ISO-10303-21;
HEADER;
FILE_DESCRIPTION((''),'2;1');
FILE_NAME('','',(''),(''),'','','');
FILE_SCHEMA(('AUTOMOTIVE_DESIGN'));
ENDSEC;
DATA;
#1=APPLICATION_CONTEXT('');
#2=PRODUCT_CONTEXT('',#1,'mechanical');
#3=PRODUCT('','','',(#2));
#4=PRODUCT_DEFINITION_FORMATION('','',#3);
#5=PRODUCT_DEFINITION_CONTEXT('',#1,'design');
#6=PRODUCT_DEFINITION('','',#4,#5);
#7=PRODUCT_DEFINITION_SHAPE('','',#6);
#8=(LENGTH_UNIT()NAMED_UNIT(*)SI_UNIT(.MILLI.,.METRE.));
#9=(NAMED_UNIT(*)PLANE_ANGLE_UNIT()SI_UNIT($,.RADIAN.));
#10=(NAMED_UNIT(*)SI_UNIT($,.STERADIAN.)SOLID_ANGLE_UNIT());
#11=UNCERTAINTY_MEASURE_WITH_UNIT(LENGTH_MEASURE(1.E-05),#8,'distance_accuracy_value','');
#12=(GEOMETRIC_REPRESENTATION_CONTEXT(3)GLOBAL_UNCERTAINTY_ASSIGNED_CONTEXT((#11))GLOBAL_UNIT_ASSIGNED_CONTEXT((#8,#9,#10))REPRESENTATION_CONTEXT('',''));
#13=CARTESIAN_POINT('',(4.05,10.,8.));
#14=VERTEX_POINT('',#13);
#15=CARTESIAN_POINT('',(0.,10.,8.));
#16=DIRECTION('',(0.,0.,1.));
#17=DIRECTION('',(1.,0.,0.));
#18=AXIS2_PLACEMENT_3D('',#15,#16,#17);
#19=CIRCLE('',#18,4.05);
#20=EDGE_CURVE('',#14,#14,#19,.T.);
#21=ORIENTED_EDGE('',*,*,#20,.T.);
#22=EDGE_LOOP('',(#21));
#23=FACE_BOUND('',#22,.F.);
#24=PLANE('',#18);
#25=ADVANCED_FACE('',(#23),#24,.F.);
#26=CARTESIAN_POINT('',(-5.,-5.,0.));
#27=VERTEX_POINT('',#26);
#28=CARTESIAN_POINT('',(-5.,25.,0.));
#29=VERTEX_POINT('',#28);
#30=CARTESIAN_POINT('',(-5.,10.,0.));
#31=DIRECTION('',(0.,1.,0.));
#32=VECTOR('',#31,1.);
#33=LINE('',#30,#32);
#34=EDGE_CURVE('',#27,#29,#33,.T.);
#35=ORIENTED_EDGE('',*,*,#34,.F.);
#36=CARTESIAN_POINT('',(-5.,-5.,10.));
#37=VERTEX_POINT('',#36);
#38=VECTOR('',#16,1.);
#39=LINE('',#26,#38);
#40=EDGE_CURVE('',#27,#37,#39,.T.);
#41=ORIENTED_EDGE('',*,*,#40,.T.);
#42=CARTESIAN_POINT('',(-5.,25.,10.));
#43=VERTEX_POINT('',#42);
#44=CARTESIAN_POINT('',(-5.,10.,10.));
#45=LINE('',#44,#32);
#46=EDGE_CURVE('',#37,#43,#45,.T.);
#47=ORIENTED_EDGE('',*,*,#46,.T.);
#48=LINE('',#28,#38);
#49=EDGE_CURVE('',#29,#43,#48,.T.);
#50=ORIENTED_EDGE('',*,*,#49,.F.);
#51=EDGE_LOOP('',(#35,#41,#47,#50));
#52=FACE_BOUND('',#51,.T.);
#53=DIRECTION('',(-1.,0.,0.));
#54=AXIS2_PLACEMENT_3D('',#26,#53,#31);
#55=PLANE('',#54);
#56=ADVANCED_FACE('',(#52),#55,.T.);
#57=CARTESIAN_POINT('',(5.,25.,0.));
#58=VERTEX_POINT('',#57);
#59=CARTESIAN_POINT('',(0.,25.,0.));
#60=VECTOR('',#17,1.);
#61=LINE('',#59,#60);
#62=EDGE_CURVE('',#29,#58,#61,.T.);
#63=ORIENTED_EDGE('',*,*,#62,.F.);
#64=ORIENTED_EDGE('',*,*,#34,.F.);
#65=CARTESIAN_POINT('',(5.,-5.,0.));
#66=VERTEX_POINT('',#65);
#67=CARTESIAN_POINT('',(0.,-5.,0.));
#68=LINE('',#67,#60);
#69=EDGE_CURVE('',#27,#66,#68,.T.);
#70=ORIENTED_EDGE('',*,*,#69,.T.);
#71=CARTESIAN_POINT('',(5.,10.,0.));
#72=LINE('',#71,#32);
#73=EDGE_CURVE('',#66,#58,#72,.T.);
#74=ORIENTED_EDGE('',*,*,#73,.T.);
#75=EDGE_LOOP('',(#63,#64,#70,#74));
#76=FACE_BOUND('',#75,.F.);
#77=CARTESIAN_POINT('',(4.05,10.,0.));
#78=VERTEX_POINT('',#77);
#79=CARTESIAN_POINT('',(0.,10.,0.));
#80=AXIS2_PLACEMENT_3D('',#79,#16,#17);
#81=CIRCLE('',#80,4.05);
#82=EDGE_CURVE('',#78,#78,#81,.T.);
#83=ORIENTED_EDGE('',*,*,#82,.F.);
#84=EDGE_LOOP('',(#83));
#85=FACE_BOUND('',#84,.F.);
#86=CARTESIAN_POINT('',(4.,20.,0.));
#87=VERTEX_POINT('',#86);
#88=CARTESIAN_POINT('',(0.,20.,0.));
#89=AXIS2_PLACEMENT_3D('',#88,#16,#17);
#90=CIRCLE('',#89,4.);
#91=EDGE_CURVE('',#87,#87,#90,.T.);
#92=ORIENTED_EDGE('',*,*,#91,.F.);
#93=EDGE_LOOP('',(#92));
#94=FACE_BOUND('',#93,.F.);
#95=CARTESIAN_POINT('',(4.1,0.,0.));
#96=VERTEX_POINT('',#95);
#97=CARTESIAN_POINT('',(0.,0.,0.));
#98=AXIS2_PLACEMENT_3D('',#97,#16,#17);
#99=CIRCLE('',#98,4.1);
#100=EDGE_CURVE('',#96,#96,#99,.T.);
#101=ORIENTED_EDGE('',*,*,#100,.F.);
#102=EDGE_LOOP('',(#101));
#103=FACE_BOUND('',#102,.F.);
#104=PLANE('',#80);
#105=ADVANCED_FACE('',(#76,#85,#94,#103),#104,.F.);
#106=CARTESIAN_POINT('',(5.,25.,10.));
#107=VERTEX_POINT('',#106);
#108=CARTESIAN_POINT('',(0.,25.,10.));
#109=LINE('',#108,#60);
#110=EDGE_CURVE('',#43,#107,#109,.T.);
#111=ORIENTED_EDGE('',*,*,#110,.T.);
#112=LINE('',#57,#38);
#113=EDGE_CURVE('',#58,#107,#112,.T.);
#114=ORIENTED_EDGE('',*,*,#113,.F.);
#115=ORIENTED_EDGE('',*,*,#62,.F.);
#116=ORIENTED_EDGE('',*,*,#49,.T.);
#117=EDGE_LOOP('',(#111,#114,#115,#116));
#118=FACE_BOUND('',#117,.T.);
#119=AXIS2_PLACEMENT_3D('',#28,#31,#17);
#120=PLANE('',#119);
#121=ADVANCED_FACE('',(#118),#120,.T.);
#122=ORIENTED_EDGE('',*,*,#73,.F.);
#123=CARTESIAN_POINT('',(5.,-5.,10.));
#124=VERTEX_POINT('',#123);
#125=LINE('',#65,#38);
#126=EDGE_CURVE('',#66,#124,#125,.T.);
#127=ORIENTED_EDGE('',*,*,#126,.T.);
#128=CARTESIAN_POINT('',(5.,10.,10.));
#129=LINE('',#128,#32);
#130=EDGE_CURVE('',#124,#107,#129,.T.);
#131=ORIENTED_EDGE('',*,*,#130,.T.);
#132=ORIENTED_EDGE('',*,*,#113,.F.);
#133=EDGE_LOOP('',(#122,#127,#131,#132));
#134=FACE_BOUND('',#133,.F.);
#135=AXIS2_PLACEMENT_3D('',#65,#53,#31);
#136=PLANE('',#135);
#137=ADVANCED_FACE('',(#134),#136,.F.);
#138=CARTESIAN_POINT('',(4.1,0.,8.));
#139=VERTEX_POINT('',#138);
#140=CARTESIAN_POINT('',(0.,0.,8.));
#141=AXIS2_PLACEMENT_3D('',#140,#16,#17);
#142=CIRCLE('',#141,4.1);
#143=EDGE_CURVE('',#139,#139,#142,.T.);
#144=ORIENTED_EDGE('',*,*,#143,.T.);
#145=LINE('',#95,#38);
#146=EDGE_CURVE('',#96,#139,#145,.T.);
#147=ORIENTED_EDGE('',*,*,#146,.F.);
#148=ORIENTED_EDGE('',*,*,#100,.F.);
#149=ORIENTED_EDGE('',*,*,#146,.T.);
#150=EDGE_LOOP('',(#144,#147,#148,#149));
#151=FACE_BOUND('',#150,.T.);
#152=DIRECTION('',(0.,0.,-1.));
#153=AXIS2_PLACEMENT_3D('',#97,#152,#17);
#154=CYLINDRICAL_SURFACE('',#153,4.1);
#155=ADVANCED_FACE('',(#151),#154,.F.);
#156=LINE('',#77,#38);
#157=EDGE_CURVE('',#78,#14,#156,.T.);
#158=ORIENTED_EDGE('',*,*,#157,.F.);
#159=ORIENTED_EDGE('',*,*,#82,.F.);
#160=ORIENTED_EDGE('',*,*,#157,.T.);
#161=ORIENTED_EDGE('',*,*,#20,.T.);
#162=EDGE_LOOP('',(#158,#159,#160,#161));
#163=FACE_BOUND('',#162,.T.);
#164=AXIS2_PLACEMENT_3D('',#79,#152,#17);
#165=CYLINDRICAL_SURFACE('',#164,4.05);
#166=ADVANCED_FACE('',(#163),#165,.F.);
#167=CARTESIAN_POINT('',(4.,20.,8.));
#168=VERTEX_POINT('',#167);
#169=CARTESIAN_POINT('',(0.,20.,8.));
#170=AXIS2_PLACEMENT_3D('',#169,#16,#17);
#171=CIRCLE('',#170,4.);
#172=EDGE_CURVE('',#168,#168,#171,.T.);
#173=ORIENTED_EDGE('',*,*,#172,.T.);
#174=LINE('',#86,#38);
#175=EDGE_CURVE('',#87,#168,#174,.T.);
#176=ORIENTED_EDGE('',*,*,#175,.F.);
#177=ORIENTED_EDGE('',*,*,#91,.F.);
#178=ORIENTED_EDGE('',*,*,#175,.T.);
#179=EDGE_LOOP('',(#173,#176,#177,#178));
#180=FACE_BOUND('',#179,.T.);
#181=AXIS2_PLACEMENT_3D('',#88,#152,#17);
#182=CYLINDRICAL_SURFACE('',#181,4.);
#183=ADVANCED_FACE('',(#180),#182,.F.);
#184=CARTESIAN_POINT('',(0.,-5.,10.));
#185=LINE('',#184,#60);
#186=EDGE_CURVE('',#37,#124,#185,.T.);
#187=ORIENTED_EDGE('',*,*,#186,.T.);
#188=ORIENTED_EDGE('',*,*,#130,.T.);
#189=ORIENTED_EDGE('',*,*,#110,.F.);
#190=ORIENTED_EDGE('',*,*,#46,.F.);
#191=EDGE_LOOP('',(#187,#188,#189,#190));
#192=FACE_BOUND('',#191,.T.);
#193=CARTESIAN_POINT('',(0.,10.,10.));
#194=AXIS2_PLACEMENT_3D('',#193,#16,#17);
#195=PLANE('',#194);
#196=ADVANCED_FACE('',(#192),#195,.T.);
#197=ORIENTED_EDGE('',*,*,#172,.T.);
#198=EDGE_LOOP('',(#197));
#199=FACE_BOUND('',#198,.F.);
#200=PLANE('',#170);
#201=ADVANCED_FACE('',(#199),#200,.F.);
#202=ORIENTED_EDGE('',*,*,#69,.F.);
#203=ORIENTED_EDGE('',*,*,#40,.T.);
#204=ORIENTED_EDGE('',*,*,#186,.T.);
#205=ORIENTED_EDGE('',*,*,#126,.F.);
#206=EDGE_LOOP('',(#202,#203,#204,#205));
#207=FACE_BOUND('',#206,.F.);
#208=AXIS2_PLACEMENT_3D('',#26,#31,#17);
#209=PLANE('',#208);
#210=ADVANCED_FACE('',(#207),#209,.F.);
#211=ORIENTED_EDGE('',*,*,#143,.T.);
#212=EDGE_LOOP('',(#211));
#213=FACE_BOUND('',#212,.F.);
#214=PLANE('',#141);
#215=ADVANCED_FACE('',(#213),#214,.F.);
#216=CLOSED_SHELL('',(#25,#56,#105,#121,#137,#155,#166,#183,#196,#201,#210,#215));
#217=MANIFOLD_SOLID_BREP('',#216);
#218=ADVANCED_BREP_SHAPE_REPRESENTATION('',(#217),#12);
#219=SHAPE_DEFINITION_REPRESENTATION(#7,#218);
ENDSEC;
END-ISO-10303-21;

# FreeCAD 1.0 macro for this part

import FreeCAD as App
import Part
import Sketcher


def add_polygon(sketch, points):
    """Adds a closed chain of lines whose ends are joined by coincident constraints."""
    first, n = sketch.GeometryCount, len(points)
    for a, b in zip(points, points[1:] + points[:1]):
        sketch.addGeometry(Part.LineSegment(App.Vector(*a, 0), App.Vector(*b, 0)), False)
    for i in range(n):
        sketch.addConstraint(Sketcher.Constraint("Coincident", first + i, 2, first + (i + 1) % n, 1))

doc = App.newDocument("Part")
body = doc.addObject("PartDesign::Body", "Body")

sketch1 = body.newObject("Sketcher::SketchObject", "Sketch")
sketch1.AttachmentSupport = (doc.getObject("XY_Plane"), [""])
sketch1.MapMode = "FlatFace"
add_polygon(sketch1, [(-5, 25), (-5, -5), (5, -5), (5, 25)])
sketch1.addConstraint([
    Sketcher.Constraint("Vertical", 0),
    Sketcher.Constraint("Horizontal", 1),
    Sketcher.Constraint("Vertical", 2),
    Sketcher.Constraint("Horizontal", 3),
    Sketcher.Constraint("DistanceX", 1, 1, 1, 2, 10.0),
    Sketcher.Constraint("DistanceY", 0, 2, 0, 1, 30.0),
    Sketcher.Constraint("DistanceX", 0, 2, -1, 1, 5.0),
    Sketcher.Constraint("DistanceY", 0, 2, -1, 1, 5.0),
])
pad1 = body.newObject("PartDesign::Pad", "Pad")
pad1.Profile = sketch1
pad1.Length = 10

sketch2 = body.newObject("Sketcher::SketchObject", "Sketch001")
sketch2.AttachmentSupport = (doc.getObject("XY_Plane"), [""])
sketch2.MapMode = "FlatFace"
sketch2.addGeometry([
    Part.Circle(App.Vector(0, 20, 0), App.Vector(0, 0, 1), 4),
    Part.Circle(App.Vector(0, 10, 0), App.Vector(0, 0, 1), 4),
    Part.Circle(App.Vector(0, 0, 0), App.Vector(0, 0, 1), 4.1),
], False)
sketch2.addConstraint([
    Sketcher.Constraint("Coincident", 2, 3, -1, 1),
    Sketcher.Constraint("PointOnObject", 0, 3, -2),
    Sketcher.Constraint("PointOnObject", 1, 3, -2),
    Sketcher.Constraint("Diameter", 0, 8.0),
    Sketcher.Constraint("Diameter", 1, 8.1),
    Sketcher.Constraint("Diameter", 2, 8.2),
    Sketcher.Constraint("DistanceY", -1, 1, 0, 3, 20.0),
    Sketcher.Constraint("DistanceY", -1, 1, 1, 3, 10.0),
])
pocket1 = body.newObject("PartDesign::Pocket", "Pocket")
pocket1.Profile = sketch2
pocket1.Length = 8
pocket1.Reversed = True

doc.recompute()
